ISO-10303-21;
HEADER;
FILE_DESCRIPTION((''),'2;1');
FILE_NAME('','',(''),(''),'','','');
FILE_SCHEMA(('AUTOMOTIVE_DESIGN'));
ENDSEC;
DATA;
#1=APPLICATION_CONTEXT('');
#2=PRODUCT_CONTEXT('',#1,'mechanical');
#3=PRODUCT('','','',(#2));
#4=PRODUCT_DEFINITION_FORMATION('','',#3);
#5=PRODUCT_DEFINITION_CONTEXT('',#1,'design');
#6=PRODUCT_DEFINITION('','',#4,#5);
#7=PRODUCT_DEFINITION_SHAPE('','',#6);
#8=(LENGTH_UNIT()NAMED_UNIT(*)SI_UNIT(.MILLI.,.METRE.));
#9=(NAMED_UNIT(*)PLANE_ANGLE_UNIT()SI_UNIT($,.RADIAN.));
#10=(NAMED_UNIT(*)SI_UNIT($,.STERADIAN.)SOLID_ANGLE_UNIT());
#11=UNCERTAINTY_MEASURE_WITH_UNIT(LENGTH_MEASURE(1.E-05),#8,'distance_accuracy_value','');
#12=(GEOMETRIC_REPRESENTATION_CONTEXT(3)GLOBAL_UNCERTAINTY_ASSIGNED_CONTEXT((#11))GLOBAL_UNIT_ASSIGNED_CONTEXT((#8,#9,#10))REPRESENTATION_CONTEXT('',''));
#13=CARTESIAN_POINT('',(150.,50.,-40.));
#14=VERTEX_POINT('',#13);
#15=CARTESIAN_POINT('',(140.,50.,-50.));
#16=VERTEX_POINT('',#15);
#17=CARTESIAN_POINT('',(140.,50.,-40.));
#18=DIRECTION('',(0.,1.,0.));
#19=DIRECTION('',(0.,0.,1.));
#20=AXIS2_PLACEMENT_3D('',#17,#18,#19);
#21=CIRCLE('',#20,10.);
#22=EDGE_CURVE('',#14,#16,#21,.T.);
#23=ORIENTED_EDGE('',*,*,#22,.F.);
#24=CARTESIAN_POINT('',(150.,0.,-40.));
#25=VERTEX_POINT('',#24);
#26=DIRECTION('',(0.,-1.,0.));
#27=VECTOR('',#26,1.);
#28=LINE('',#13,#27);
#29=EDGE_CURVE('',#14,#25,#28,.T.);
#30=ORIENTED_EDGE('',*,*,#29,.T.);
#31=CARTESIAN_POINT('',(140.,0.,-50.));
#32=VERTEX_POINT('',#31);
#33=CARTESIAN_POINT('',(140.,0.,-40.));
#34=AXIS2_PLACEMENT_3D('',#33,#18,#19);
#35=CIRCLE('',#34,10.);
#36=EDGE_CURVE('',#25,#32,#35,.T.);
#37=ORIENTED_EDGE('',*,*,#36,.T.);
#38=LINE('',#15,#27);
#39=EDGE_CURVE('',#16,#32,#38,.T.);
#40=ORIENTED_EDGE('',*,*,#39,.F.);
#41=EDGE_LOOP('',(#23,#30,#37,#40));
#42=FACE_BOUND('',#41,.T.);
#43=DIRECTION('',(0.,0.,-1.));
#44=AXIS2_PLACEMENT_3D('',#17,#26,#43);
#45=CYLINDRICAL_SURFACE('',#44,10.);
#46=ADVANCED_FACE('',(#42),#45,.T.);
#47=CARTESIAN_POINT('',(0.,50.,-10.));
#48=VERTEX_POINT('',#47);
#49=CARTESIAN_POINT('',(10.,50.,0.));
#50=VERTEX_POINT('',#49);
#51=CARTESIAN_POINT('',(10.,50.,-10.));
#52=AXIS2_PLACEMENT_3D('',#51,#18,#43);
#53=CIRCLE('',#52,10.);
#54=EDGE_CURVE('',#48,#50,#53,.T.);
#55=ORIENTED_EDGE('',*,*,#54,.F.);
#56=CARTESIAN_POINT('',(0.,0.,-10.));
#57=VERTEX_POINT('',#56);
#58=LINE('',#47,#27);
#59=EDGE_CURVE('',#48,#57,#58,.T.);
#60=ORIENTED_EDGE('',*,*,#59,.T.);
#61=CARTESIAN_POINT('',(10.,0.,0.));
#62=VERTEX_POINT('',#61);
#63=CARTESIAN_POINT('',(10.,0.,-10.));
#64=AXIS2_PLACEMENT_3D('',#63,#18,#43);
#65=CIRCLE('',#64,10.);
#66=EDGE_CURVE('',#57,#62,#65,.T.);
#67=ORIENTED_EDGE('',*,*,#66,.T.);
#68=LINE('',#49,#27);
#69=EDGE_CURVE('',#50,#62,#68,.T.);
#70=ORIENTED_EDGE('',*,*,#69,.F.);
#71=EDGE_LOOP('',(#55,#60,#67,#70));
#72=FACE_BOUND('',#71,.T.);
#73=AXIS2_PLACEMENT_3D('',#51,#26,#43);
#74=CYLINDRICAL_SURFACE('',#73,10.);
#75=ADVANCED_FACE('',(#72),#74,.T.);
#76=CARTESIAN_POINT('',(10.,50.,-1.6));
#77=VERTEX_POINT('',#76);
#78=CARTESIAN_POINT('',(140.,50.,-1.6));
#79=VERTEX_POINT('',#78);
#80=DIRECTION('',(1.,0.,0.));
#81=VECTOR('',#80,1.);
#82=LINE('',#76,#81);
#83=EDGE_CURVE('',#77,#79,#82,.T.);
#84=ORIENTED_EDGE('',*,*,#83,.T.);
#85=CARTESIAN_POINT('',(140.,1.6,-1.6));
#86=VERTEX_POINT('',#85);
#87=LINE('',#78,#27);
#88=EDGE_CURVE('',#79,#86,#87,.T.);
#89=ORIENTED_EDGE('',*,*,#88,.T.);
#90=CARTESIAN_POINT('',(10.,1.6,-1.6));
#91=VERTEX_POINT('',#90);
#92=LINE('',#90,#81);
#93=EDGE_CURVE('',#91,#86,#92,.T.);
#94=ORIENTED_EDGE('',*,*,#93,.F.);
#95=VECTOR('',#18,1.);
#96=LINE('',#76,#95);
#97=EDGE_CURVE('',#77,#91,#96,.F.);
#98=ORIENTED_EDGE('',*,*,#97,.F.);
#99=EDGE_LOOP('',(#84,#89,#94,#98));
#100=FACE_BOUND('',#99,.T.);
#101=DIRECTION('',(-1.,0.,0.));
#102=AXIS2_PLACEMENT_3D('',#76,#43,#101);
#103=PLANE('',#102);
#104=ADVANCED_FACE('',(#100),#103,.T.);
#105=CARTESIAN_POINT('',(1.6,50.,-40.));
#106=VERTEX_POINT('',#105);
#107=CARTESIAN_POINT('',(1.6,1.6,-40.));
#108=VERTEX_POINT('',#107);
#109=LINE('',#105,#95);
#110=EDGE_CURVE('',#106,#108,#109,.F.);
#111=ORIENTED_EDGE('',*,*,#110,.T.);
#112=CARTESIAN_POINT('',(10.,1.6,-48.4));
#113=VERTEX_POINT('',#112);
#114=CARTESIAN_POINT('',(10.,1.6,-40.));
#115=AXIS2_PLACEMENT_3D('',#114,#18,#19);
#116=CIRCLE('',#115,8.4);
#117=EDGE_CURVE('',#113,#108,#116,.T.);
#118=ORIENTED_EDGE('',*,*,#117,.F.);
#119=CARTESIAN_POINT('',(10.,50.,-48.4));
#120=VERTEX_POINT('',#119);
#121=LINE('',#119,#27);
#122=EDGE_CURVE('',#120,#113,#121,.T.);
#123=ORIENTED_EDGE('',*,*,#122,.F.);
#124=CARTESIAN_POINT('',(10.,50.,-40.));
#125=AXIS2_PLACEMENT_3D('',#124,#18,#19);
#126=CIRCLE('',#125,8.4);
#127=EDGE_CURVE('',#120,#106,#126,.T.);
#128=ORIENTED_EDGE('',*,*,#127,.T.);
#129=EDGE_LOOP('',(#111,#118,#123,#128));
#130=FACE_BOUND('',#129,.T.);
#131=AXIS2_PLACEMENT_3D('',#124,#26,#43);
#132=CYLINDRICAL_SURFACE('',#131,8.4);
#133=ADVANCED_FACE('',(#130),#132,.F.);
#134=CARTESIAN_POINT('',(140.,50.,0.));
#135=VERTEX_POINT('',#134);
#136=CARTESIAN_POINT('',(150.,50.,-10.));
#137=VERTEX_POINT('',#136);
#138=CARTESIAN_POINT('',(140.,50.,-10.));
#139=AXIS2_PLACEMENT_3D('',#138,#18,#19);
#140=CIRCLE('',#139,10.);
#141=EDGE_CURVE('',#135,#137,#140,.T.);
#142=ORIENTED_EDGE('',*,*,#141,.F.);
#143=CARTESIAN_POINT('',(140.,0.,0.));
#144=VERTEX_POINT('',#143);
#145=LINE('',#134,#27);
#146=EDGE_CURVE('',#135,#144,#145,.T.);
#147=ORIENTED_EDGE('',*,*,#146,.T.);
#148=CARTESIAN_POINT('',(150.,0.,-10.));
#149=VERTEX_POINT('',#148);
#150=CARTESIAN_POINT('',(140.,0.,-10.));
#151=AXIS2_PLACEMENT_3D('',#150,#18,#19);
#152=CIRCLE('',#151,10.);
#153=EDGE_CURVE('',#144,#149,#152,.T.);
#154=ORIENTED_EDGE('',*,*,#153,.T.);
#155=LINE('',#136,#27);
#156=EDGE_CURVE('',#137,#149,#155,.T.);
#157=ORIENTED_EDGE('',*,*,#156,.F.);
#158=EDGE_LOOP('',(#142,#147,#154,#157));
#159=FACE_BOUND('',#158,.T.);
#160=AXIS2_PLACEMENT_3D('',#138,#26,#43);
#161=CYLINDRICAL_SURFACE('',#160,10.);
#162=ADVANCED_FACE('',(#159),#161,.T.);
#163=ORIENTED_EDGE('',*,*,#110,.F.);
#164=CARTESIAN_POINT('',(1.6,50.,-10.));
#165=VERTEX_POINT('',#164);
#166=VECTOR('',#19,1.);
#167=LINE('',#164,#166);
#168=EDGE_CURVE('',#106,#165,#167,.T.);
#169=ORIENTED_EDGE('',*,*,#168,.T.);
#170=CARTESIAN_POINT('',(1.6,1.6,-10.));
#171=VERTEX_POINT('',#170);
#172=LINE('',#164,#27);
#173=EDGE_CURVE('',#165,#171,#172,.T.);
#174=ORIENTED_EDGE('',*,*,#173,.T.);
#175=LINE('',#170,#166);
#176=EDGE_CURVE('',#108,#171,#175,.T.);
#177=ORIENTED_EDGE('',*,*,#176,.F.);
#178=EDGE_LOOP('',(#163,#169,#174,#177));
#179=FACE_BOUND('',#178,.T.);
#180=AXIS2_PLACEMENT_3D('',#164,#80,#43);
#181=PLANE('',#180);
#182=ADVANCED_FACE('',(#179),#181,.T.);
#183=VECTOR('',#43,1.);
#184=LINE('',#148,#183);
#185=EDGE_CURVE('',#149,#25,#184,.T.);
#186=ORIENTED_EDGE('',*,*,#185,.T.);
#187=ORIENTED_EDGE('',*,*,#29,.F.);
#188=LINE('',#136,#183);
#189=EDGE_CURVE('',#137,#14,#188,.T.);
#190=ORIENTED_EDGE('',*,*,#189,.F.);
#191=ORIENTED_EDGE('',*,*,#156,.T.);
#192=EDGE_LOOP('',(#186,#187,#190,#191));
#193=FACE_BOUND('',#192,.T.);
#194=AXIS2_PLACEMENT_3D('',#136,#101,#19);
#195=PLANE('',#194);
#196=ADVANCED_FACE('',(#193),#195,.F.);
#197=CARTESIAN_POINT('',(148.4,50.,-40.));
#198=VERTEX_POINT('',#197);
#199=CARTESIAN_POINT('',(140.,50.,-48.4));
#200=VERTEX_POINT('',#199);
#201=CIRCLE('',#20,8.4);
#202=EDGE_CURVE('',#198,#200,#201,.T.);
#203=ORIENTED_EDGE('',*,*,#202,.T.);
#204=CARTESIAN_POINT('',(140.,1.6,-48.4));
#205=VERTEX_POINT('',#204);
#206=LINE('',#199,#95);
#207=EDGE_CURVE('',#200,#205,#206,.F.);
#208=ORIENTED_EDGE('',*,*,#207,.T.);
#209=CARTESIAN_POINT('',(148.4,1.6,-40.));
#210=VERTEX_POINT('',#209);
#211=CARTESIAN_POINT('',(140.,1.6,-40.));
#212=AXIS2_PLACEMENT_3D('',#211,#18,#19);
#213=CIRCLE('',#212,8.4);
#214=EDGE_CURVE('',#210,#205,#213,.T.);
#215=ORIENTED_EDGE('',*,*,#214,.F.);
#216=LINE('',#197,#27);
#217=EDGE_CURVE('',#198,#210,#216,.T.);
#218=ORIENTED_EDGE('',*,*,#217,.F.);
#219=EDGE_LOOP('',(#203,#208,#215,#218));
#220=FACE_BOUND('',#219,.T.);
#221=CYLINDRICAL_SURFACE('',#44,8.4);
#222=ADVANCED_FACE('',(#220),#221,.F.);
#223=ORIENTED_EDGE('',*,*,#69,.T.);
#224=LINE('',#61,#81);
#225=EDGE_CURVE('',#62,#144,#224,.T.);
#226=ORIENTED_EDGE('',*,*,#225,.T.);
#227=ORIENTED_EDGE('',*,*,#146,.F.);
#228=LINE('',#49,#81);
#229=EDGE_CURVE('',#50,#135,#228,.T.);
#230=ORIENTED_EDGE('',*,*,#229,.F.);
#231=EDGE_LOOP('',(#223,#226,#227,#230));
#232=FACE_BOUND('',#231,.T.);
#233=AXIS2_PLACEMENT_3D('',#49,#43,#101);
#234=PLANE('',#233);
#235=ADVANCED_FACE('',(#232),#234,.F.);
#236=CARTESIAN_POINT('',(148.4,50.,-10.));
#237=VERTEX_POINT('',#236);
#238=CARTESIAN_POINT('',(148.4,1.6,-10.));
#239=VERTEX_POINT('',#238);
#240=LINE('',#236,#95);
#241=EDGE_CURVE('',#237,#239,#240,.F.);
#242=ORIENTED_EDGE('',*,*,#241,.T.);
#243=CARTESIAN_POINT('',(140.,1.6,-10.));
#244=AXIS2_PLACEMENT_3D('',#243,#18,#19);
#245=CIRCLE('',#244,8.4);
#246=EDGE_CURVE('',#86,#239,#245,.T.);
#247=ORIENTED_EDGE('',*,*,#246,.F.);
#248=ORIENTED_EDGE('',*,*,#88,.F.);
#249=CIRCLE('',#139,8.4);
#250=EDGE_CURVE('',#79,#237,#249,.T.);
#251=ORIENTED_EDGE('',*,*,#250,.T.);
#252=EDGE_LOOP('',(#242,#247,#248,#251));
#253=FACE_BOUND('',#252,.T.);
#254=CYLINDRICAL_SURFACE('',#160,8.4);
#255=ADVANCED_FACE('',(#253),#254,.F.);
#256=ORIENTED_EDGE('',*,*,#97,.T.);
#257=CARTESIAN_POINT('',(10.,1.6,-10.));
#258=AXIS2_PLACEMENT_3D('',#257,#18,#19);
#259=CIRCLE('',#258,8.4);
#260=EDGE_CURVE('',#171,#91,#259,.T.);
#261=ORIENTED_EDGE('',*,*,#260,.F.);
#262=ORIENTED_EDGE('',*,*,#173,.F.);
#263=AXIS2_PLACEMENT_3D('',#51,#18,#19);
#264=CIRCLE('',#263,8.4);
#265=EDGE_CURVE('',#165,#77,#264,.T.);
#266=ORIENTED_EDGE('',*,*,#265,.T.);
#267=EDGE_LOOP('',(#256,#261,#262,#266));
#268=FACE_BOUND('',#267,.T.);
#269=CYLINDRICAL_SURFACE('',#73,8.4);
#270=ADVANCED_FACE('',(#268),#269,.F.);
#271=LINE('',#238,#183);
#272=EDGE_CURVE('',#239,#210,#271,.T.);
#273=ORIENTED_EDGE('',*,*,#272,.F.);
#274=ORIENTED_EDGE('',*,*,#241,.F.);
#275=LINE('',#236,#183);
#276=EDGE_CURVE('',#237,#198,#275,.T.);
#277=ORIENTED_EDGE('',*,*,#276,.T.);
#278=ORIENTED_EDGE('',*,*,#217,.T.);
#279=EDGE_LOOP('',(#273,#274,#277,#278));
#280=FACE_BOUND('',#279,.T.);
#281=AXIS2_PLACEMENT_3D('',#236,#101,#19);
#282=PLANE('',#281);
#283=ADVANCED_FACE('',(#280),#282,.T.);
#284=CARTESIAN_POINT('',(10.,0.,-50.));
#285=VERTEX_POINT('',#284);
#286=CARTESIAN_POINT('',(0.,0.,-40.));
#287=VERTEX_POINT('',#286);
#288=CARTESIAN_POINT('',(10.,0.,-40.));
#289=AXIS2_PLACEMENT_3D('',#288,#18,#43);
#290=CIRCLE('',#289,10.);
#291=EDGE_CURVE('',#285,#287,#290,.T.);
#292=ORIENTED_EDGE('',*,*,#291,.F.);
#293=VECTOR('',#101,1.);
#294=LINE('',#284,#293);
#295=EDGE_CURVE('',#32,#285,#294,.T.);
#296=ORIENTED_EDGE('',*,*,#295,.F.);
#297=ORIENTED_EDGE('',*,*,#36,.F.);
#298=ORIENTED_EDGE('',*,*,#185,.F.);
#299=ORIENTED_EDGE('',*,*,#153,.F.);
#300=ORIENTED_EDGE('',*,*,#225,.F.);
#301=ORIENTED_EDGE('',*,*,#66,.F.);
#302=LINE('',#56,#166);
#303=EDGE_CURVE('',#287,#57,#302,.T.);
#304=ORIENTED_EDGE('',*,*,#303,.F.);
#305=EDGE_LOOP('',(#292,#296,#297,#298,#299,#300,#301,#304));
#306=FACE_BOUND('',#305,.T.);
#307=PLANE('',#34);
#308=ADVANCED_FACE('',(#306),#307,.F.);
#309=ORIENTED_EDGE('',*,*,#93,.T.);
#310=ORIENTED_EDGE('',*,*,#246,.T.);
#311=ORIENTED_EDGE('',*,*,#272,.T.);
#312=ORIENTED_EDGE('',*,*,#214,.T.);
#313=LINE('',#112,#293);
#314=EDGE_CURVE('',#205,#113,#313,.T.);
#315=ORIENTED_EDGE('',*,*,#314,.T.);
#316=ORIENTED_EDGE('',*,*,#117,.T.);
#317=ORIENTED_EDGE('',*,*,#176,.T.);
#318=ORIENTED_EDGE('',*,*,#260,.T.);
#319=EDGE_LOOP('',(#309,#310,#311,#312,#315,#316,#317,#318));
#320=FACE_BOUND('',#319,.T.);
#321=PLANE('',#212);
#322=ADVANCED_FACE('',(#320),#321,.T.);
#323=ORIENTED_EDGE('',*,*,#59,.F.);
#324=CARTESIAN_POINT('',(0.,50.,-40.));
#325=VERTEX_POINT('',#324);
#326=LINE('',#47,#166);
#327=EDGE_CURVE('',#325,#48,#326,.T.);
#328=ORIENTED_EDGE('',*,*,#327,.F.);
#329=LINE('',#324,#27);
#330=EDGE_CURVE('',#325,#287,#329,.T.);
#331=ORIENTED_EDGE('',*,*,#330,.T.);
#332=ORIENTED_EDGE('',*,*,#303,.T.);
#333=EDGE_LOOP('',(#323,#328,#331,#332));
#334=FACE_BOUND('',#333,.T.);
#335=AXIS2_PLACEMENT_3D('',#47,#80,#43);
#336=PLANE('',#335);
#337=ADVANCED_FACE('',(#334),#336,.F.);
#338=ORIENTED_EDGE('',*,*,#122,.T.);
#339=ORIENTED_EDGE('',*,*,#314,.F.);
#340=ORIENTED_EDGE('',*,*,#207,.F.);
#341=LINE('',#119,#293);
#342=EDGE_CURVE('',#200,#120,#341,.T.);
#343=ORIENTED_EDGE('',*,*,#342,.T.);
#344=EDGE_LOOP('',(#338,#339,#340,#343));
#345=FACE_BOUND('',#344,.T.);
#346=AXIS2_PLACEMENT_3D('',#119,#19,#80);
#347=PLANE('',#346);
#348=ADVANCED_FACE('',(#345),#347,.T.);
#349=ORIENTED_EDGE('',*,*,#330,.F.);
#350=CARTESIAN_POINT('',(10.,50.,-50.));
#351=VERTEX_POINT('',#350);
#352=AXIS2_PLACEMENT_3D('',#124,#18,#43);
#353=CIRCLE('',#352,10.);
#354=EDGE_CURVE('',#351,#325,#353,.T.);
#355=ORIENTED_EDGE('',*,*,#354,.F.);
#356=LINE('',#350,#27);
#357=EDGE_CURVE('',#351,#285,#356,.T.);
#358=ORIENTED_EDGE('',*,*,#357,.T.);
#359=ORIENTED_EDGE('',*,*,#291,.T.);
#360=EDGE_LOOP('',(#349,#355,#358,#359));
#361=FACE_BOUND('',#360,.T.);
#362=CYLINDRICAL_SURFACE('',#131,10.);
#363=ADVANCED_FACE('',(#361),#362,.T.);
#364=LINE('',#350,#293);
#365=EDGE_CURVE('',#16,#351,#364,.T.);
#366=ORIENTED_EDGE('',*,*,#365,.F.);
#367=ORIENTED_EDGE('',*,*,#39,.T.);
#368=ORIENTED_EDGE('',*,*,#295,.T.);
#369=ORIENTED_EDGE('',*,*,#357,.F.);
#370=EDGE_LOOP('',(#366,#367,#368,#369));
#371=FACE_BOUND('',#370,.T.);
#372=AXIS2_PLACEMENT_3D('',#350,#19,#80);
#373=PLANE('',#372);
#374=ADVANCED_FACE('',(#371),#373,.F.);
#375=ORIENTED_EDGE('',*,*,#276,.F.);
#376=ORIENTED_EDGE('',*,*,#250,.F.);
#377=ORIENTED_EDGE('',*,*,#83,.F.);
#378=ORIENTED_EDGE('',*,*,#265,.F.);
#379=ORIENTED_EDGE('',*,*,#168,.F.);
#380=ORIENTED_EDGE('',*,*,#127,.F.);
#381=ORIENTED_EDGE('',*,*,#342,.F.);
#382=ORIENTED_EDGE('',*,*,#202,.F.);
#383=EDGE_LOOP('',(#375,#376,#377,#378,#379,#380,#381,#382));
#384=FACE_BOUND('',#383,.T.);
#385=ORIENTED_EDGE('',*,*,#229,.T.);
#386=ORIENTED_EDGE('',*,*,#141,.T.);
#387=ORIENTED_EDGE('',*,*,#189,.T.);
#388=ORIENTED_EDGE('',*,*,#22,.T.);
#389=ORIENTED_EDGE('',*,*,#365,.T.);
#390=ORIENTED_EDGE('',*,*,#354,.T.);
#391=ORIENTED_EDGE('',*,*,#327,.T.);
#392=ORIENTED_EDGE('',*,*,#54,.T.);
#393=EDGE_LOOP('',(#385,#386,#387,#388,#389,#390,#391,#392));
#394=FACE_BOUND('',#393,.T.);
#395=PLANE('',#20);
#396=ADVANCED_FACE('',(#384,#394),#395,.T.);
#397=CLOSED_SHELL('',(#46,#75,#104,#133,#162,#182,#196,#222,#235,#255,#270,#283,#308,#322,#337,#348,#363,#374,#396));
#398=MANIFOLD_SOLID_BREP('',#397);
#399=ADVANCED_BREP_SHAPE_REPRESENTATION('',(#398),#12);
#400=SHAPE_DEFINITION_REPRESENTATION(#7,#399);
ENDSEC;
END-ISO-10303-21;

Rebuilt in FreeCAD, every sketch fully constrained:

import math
import FreeCAD as App
import Part
import Sketcher


def faces_at(feature, points):
    """Names of the faces that lie closest to the given points."""
    faces = feature.Shape.Faces
    near = lambda p: min(range(len(faces)), key=lambda i: faces[i].distToShape(Part.Vertex(*p))[0])
    return sorted({f"Face{near(p) + 1}" for p in points})

doc = App.newDocument("Part")
body = doc.addObject("PartDesign::Body", "Body")

sketch1 = body.newObject("Sketcher::SketchObject", "Sketch")
sketch1.AttachmentSupport = (doc.getObject("XZ_Plane"), [""])
sketch1.MapMode = "FlatFace"
sketch1.addGeometry(Part.LineSegment(App.Vector(10, 0, 0), App.Vector(140, 0, 0)), False)
sketch1.addGeometry(Part.ArcOfCircle(Part.Circle(App.Vector(140, -10, 0), App.Vector(0, 0, 1), 10), math.radians(0), math.radians(90)), False)
sketch1.addGeometry(Part.LineSegment(App.Vector(150, -10, 0), App.Vector(150, -40, 0)), False)
sketch1.addGeometry(Part.ArcOfCircle(Part.Circle(App.Vector(140, -40, 0), App.Vector(0, 0, 1), 10), math.radians(-90), math.radians(0)), False)
sketch1.addGeometry(Part.LineSegment(App.Vector(140, -50, 0), App.Vector(10, -50, 0)), False)
sketch1.addGeometry(Part.ArcOfCircle(Part.Circle(App.Vector(10, -40, 0), App.Vector(0, 0, 1), 10), math.radians(180), math.radians(270)), False)
sketch1.addGeometry(Part.LineSegment(App.Vector(0, -40, 0), App.Vector(0, -10, 0)), False)
sketch1.addGeometry(Part.ArcOfCircle(Part.Circle(App.Vector(10, -10, 0), App.Vector(0, 0, 1), 10), math.radians(90), math.radians(180)), False)
sketch1.addConstraint(Sketcher.Constraint("Tangent", 0, 2, 1, 2))
sketch1.addConstraint(Sketcher.Constraint("Tangent", 1, 1, 2, 1))
sketch1.addConstraint(Sketcher.Constraint("Tangent", 2, 2, 3, 2))
sketch1.addConstraint(Sketcher.Constraint("Tangent", 3, 1, 4, 1))
sketch1.addConstraint(Sketcher.Constraint("Tangent", 4, 2, 5, 2))
sketch1.addConstraint(Sketcher.Constraint("Tangent", 5, 1, 6, 1))
sketch1.addConstraint(Sketcher.Constraint("Tangent", 6, 2, 7, 2))
sketch1.addConstraint(Sketcher.Constraint("Tangent", 7, 1, 0, 1))
sketch1.addConstraint(Sketcher.Constraint("Horizontal", 0))
sketch1.addConstraint(Sketcher.Constraint("Vertical", 2))
sketch1.addConstraint(Sketcher.Constraint("Horizontal", 4))
sketch1.addConstraint(Sketcher.Constraint("Vertical", 6))
sketch1.addConstraint(Sketcher.Constraint("Equal", 1, 3))
sketch1.addConstraint(Sketcher.Constraint("Equal", 3, 5))
sketch1.addConstraint(Sketcher.Constraint("Equal", 5, 7))
sketch1.addConstraint(Sketcher.Constraint("PointOnObject", 0, 2, -1))
sketch1.addConstraint(Sketcher.Constraint("PointOnObject", 5, 1, -2))
sketch1.addConstraint(Sketcher.Constraint("Radius", 1, 10.0))
sketch1.addConstraint(Sketcher.Constraint("DistanceX", 0, 1, 0, 2, 130.0))
sketch1.addConstraint(Sketcher.Constraint("DistanceY", 2, 2, 2, 1, 30.0))
pad1 = body.newObject("PartDesign::Pad", "Pad")
pad1.Profile = sketch1
pad1.Length = 50
pad1.Reversed = True
doc.recompute()

thickness = body.newObject("PartDesign::Thickness", "Thickness")
thickness.Base = (pad1, faces_at(pad1, [(75, 50, -25)]))
thickness.Value = 1.6
thickness.Reversed = True
thickness.Join = "Intersection"

doc.recompute()
